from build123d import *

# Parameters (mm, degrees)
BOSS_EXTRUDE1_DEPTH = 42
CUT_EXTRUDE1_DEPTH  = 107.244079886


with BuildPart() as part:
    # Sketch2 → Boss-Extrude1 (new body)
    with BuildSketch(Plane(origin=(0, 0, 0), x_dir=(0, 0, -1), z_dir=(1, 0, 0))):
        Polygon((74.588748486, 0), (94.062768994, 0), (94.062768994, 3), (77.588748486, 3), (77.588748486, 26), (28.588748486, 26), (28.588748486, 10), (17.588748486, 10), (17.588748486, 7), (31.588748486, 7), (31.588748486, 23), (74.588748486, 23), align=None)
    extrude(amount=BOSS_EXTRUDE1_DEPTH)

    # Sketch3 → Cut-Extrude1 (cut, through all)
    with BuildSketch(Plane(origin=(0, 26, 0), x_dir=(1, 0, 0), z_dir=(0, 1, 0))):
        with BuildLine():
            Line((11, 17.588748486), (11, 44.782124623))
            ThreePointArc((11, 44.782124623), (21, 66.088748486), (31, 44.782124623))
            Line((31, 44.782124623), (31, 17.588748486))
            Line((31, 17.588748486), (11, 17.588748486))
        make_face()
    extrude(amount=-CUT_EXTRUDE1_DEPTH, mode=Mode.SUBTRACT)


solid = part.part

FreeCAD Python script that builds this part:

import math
import FreeCAD as App
import Part
import Sketcher


def add_polygon(sketch, points):
    """Adds a closed chain of lines whose ends are joined by coincident constraints."""
    first, n = sketch.GeometryCount, len(points)
    for a, b in zip(points, points[1:] + points[:1]):
        sketch.addGeometry(Part.LineSegment(App.Vector(*a, 0), App.Vector(*b, 0)), False)
    for i in range(n):
        sketch.addConstraint(Sketcher.Constraint("Coincident", first + i, 2, first + (i + 1) % n, 1))

doc = App.newDocument("Part")
params = doc.addObject("Spreadsheet::Sheet", "Params")
for row, (alias, value) in enumerate([
    ("sketch1_width", "3 mm"),
    ("sketch1_width2", "23 mm"),
    ("sketch1_width3", "16 mm"),
    ("sketch1_height", "49 mm"),
    ("sketch1_height2", "11 mm"),
    ("pad1_length", "42 mm"),
    ("sketch2_radius", "13 mm"),
    ("sketch2_width", "20 mm"),
], start=1):
    params.set(f"A{row}", alias)
    params.set(f"B{row}", "=" + value)
    params.setAlias(f"B{row}", alias)

body = doc.addObject("PartDesign::Body", "Body")

# Sketch on YZ plane
sketch1 = doc.addObject("Sketcher::SketchObject", "Sketch")
body.addObject(sketch1)
sketch1.AttachmentSupport = (doc.YZ_Plane, [""])
sketch1.MapMode = "FlatFace"
add_polygon(sketch1, [(0, -74.588748), (0, -94.062769), (3, -94.062769), (3, -77.588748), (26, -77.588748), (26, -28.588748), (10, -28.588748), (10, -17.588748), (7, -17.588748), (7, -31.588748), (23, -31.588748), (23, -74.588748)])  # lines 0-11
sketch1.addConstraint(Sketcher.Constraint("Vertical", 0))
sketch1.addConstraint(Sketcher.Constraint("Horizontal", 1))
sketch1.addConstraint(Sketcher.Constraint("Vertical", 2))
sketch1.addConstraint(Sketcher.Constraint("Horizontal", 3))
sketch1.addConstraint(Sketcher.Constraint("Vertical", 4))
sketch1.addConstraint(Sketcher.Constraint("Horizontal", 5))
sketch1.addConstraint(Sketcher.Constraint("Vertical", 6))
sketch1.addConstraint(Sketcher.Constraint("Horizontal", 7))
sketch1.addConstraint(Sketcher.Constraint("Vertical", 8))
sketch1.addConstraint(Sketcher.Constraint("Horizontal", 9))
sketch1.addConstraint(Sketcher.Constraint("Vertical", 10))
sketch1.addConstraint(Sketcher.Constraint("Horizontal", 11))
sketch1.addConstraint(Sketcher.Constraint("PointOnObject", 0, 2, -2))
sketch1.addConstraint(Sketcher.Constraint("Equal", 1, 7))
sketch1.addConstraint(Sketcher.Constraint("Equal", 5, 9))
sketch1.addConstraint(Sketcher.Constraint("DistanceX", 1, 1, 1, 2, 3.0))
sketch1.addConstraint(Sketcher.Constraint("DistanceX", 3, 1, 3, 2, 23.0))
sketch1.addConstraint(Sketcher.Constraint("DistanceX", 5, 2, 5, 1, 16.0))
sketch1.addConstraint(Sketcher.Constraint("DistanceY", 4, 1, 4, 2, 49.0))
sketch1.addConstraint(Sketcher.Constraint("DistanceY", 6, 1, 6, 2, 11.0))
sketch1.addConstraint(Sketcher.Constraint("DistanceY", 8, 2, 8, 1, 14.0))
sketch1.addConstraint(Sketcher.Constraint("DistanceY", 10, 2, 10, 1, 43.0))
sketch1.addConstraint(Sketcher.Constraint("DistanceY", 0, 2, 0, 1, 19.474021))
sketch1.addConstraint(Sketcher.Constraint("DistanceY", 0, 2, -1, 1, 94.062769))
sketch1.setExpression("Constraints[27]", "Params.sketch1_width")
sketch1.setExpression("Constraints[28]", "Params.sketch1_width2")
sketch1.setExpression("Constraints[29]", "Params.sketch1_width3")
sketch1.setExpression("Constraints[30]", "Params.sketch1_height")
sketch1.setExpression("Constraints[31]", "Params.sketch1_height2")
pad1 = doc.addObject("PartDesign::Pad", "Pad")
body.addObject(pad1)
pad1.Profile = sketch1
pad1.setExpression("Length", "Params.pad1_length")

# Sketch on XZ plane
sketch2 = doc.addObject("Sketcher::SketchObject", "Sketch001")
body.addObject(sketch2)
sketch2.AttachmentSupport = (doc.XZ_Plane, [""])
sketch2.MapMode = "FlatFace"
sketch2.AttachmentOffset = App.Placement(App.Vector(0, 0, -26), App.Rotation())
sketch2.addGeometry(Part.LineSegment(App.Vector(11, -44.782125, 0), App.Vector(11, -17.588748, 0)), False)
sketch2.addGeometry(Part.LineSegment(App.Vector(11, -17.588748, 0), App.Vector(31, -17.588748, 0)), False)
sketch2.addGeometry(Part.LineSegment(App.Vector(31, -17.588748, 0), App.Vector(31, -44.782125, 0)), False)
sketch2.addGeometry(Part.ArcOfCircle(Part.Circle(App.Vector(21, -53.088748, 0), App.Vector(0, 0, 1), 13), math.radians(140.284863), math.radians(399.715137)), False)
sketch2.addConstraint(Sketcher.Constraint("Coincident", 0, 2, 1, 1))
sketch2.addConstraint(Sketcher.Constraint("Coincident", 1, 2, 2, 1))
sketch2.addConstraint(Sketcher.Constraint("Coincident", 2, 2, 3, 2))
sketch2.addConstraint(Sketcher.Constraint("Coincident", 3, 1, 0, 1))
sketch2.addConstraint(Sketcher.Constraint("Vertical", 0))
sketch2.addConstraint(Sketcher.Constraint("Horizontal", 1))
sketch2.addConstraint(Sketcher.Constraint("Vertical", 2))
sketch2.addConstraint(Sketcher.Constraint("Horizontal", 2, 2, 3, 1))
sketch2.addConstraint(Sketcher.Constraint("Radius", 3, 13.0))
sketch2.addConstraint(Sketcher.Constraint("DistanceX", 1, 1, 1, 2, 20.0))
sketch2.addConstraint(Sketcher.Constraint("DistanceX", -1, 1, 3, 3, 21.0))
sketch2.addConstraint(Sketcher.Constraint("DistanceY", 3, 3, 0, 2, 35.5))
sketch2.addConstraint(Sketcher.Constraint("DistanceY", 3, 3, -1, 1, 53.088748))
sketch2.setExpression("Constraints[8]", "Params.sketch2_radius")
sketch2.setExpression("Constraints[9]", "Params.sketch2_width")
pocket1 = doc.addObject("PartDesign::Pocket", "Pocket")
body.addObject(pocket1)
pocket1.Profile = sketch2
pocket1.Type = "ThroughAll"
pocket1.Reversed = True

doc.recompute()
